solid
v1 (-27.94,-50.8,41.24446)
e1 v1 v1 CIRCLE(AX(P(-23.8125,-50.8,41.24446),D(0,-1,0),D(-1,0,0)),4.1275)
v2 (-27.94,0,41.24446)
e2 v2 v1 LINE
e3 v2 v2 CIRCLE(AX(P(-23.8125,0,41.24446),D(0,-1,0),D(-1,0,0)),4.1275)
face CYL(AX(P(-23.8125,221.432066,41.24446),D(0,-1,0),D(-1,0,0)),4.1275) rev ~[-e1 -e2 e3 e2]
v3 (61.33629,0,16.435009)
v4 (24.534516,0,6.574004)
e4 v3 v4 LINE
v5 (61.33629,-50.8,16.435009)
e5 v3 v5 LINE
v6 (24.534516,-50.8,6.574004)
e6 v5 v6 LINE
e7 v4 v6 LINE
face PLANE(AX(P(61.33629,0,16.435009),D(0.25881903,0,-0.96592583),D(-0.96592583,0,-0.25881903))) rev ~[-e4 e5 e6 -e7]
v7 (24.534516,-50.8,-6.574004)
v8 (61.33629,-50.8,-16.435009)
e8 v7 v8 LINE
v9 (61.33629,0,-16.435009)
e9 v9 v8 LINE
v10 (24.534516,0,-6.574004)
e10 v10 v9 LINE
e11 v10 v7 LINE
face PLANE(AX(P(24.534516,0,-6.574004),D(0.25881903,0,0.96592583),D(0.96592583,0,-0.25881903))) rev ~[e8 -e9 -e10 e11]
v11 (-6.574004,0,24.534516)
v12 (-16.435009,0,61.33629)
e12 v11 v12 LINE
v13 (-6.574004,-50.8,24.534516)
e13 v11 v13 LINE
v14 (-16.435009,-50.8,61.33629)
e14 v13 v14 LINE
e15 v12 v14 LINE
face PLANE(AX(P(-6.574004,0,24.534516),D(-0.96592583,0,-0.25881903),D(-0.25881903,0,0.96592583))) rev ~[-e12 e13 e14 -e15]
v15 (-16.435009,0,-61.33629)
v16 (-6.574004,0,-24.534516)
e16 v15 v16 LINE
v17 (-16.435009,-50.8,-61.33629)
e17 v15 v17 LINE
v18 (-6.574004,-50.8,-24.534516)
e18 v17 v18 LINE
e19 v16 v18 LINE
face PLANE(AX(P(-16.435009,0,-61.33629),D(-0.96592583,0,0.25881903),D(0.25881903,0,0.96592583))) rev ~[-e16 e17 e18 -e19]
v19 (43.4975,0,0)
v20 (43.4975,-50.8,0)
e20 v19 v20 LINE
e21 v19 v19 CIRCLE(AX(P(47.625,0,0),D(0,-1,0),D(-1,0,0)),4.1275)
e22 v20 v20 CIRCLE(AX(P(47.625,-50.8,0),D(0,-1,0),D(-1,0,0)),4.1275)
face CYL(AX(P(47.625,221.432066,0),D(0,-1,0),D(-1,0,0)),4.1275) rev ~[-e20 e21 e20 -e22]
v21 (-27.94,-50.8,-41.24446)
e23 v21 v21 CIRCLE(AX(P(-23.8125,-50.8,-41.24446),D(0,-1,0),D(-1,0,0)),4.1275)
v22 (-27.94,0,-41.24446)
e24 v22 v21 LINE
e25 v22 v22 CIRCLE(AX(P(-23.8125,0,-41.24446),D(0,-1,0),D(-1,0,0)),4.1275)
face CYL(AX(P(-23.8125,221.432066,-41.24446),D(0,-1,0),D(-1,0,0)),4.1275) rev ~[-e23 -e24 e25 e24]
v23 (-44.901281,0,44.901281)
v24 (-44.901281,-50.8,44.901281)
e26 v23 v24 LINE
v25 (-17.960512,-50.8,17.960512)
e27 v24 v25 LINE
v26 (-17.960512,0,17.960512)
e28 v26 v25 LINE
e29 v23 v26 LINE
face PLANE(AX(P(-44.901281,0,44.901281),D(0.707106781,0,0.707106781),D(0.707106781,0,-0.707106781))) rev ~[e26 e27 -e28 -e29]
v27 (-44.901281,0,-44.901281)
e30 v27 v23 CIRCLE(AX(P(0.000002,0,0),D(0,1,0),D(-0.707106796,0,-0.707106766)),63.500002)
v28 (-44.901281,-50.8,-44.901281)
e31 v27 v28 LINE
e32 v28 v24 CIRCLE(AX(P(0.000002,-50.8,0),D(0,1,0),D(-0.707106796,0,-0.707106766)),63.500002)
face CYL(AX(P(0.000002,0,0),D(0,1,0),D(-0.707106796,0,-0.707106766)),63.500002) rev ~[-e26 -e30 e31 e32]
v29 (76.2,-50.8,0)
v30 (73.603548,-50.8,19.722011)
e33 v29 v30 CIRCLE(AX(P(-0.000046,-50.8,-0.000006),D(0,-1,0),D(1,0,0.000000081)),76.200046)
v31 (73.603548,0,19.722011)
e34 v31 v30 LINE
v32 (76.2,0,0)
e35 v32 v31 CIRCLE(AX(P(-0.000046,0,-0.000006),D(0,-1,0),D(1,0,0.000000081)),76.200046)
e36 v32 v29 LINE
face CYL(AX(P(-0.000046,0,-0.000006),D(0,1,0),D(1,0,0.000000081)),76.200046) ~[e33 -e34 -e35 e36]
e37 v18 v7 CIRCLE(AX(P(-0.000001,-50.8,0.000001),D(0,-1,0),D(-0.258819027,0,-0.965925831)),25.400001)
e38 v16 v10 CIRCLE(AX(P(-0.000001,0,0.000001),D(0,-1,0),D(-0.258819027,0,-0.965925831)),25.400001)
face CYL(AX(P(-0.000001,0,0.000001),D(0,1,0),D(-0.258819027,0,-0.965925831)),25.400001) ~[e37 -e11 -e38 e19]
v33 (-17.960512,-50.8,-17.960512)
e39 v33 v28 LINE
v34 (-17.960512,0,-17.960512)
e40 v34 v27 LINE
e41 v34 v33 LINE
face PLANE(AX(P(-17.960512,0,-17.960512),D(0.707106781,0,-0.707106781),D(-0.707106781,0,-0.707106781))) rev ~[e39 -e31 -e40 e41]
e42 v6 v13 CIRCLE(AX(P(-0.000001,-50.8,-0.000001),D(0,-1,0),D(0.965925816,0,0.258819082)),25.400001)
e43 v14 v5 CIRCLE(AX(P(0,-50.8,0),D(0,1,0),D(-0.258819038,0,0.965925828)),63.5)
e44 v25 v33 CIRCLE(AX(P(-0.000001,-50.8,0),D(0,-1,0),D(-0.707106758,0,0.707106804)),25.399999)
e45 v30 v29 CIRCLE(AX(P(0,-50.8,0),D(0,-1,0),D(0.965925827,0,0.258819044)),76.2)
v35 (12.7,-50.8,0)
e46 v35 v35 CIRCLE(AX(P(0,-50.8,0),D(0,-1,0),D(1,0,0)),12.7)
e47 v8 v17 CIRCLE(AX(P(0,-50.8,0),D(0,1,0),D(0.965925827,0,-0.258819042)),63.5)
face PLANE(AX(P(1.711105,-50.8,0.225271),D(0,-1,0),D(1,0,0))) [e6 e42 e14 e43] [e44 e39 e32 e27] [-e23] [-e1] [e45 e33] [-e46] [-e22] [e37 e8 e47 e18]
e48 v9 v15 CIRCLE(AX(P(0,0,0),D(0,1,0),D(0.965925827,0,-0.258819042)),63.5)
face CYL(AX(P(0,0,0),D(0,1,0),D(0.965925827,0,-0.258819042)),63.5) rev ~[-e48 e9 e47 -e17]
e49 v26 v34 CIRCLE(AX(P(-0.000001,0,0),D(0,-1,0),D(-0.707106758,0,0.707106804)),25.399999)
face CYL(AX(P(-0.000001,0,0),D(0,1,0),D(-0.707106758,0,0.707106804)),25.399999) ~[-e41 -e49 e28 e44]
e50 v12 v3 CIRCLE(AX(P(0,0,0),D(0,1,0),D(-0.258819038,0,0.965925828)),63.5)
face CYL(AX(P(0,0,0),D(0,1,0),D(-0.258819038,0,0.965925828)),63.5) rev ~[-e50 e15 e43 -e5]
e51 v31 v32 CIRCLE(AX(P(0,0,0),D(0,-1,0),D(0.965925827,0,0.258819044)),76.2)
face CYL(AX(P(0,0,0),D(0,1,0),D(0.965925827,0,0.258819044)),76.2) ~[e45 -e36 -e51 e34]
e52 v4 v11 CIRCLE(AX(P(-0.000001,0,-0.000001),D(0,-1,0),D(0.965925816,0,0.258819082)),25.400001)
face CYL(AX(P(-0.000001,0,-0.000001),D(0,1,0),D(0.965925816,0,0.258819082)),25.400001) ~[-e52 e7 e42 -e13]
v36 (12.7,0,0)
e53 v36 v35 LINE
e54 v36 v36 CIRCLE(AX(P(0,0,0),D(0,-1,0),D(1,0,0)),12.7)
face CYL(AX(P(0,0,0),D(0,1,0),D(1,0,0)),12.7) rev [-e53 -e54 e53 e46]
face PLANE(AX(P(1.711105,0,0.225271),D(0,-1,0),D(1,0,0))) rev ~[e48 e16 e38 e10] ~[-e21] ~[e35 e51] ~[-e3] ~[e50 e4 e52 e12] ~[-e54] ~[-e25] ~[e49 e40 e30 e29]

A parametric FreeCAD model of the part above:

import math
import FreeCAD as App
import Part
import Sketcher

V = App.Vector
Q = App.Units.Quantity

doc = App.newDocument("Part")
body = doc.addObject("PartDesign::Body", "Body")

# Sketch on XZ plane
sketch1 = body.newObject("Sketcher::SketchObject", "Sketch")
sketch1.AttachmentSupport = (doc.getObject("XZ_Plane"), [""])
sketch1.MapMode = "FlatFace"
sketch1.addGeometry([
    Part.ArcOfCircle(Part.Circle(V(0, 0, 0), V(0, 0, 1), 76.2), math.radians(15), math.radians(360)),  # 0
    Part.ArcOfCircle(Part.Circle(V(-0.000046, -0.000006, 0), V(0, 0, 1), 76.200046), math.radians(0.000005), math.radians(14.999995)),  # 1
    Part.ArcOfCircle(Part.Circle(V(-0.000001, 0.000001, 0), V(0, 0, 1), 25.400001), math.radians(-104.999999), math.radians(-15.000002)),  # 2
    Part.LineSegment(V(24.534516, -6.574004, 0), V(61.33629, -16.435009, 0)),  # 3
    Part.ArcOfCircle(Part.Circle(V(0, 0, 0), V(0, 0, 1), 63.5), math.radians(-105), math.radians(-15)),  # 4
    Part.LineSegment(V(-16.435009, -61.33629, 0), V(-6.574004, -24.534516, 0)),  # 5
    Part.LineSegment(V(-17.960512, -17.960512, 0), V(-44.901281, -44.901281, 0)),  # 6
    Part.ArcOfCircle(Part.Circle(V(0.000002, 0, 0), V(0, 0, 1), 63.500002), math.radians(135.000001), math.radians(224.999999)),  # 7
    Part.LineSegment(V(-44.901281, 44.901281, 0), V(-17.960512, 17.960512, 0)),  # 8
    Part.ArcOfCircle(Part.Circle(V(-0.000001, 0, 0), V(0, 0, 1), 25.399999), math.radians(134.999998), math.radians(225.000002)),  # 9
    Part.Circle(V(0, 0, 0), V(0, 0, 1), 12.7),  # 10
    Part.LineSegment(V(-6.574004, 24.534516, 0), V(-16.435009, 61.33629, 0)),  # 11
    Part.ArcOfCircle(Part.Circle(V(0, 0, 0), V(0, 0, 1), 63.5), math.radians(15), math.radians(105)),  # 12
    Part.LineSegment(V(61.33629, 16.435009, 0), V(24.534516, 6.574004, 0)),  # 13
    Part.ArcOfCircle(Part.Circle(V(-0.000001, -0.000001, 0), V(0, 0, 1), 25.400001), math.radians(15.000002), math.radians(104.999999)),  # 14
], False)
sketch1.addConstraint([
    Sketcher.Constraint("Coincident", 0, 1, 1, 2),
    Sketcher.Constraint("Coincident", 1, 1, 0, 2),
    Sketcher.Constraint("Coincident", 2, 2, 3, 1),
    Sketcher.Constraint("Coincident", 3, 2, 4, 2),
    Sketcher.Constraint("Coincident", 4, 1, 5, 1),
    Sketcher.Constraint("Coincident", 5, 2, 2, 1),
    Sketcher.Constraint("Coincident", 6, 2, 7, 2),
    Sketcher.Constraint("Coincident", 7, 1, 8, 1),
    Sketcher.Constraint("Coincident", 8, 2, 9, 1),
    Sketcher.Constraint("Coincident", 9, 2, 6, 1),
    Sketcher.Constraint("Coincident", 11, 2, 12, 2),
    Sketcher.Constraint("Coincident", 12, 1, 13, 1),
    Sketcher.Constraint("Coincident", 13, 2, 14, 1),
    Sketcher.Constraint("Coincident", 14, 2, 11, 1),
    Sketcher.Constraint("Coincident", 0, 3, -1, 1),
    Sketcher.Constraint("Coincident", 2, 3, -1, 1),
    Sketcher.Constraint("Coincident", 4, 3, -1, 1),
    Sketcher.Constraint("Coincident", 7, 3, -1, 1),
    Sketcher.Constraint("Coincident", 9, 3, -1, 1),
    Sketcher.Constraint("Coincident", 10, 3, -1, 1),
    Sketcher.Constraint("Coincident", 12, 3, -1, 1),
    Sketcher.Constraint("Coincident", 14, 3, -1, 1),
    Sketcher.Constraint("PointOnObject", 1, 1, -1),
    Sketcher.Constraint("Diameter", 10, Q("1 in")),
    Sketcher.Constraint("Radius", 0, Q("3 in")),
    Sketcher.Constraint("Radius", 2, Q("1 in")),
    Sketcher.Constraint("Radius", 9, Q("1 in")),
    Sketcher.Constraint("Radius", 14, Q("1 in")),
    Sketcher.Constraint("Radius", 4, Q("2.5 in")),
    Sketcher.Constraint("Radius", 7, Q("2.5000001 in")),
    Sketcher.Constraint("Radius", 12, Q("2.5 in")),
    Sketcher.Constraint("Radius", 1, 76.200046),
    Sketcher.Constraint("DistanceY", 12, 1, 0, 1, 3.287002),
    Sketcher.Constraint("DistanceY", -1, 1, 0, 1, 19.722011),
    Sketcher.Constraint("DistanceX", -1, 1, 3, 2, 61.33629),
    Sketcher.Constraint("DistanceX", 4, 1, -1, 1, 16.435009),
    Sketcher.Constraint("DistanceX", 6, 2, -1, 1, 44.901281),
    Sketcher.Constraint("DistanceX", 7, 1, -1, 1, 44.901281),
    Sketcher.Constraint("DistanceX", 11, 2, -1, 1, 16.435009),
    Sketcher.Constraint("DistanceY", 5, 2, 1, 3, 24.53451),
    Sketcher.Constraint("DistanceY", 1, 3, 8, 2, 17.960518),
    Sketcher.Constraint("DistanceX", 9, 2, 5, 2, 11.386508),
    Sketcher.Constraint("DistanceY", 2, 2, 13, 2, 13.148008),
    Sketcher.Constraint("DistanceX", 8, 2, 14, 2, 11.386508),
    Sketcher.Constraint("DistanceX", -1, 1, 2, 2, 24.534516),
])
pad1 = body.newObject("PartDesign::Pad", "Pad")
pad1.Profile = sketch1
pad1.Length = Q("2 in")

# Sketch on XZ plane
sketch2 = body.newObject("Sketcher::SketchObject", "Sketch001")
sketch2.AttachmentSupport = (doc.getObject("XZ_Plane"), [""])
sketch2.MapMode = "FlatFace"
sketch2.addGeometry([
    Part.Circle(V(47.6, 0, 0), V(0, 0, 1), 4.1),
    Part.Circle(V(-23.8, 41.2, 0), V(0, 0, 1), 4.1),
    Part.Circle(V(-23.8, -41.2, 0), V(0, 0, 1), 4.1),
], False)
sketch2.addConstraint([
    Sketcher.Constraint("Equal", 0, 1),
    Sketcher.Constraint("Equal", 1, 2),
    Sketcher.Constraint("Symmetric", 1, 3, 2, 3, -1),
    Sketcher.Constraint("PointOnObject", 0, 3, -1),
    Sketcher.Constraint("Diameter", 0, Q("0.325 in")),
    Sketcher.Constraint("DistanceX", -1, 1, 0, 3, Q("1.875 in")),
    Sketcher.Constraint("DistanceX", 1, 3, -1, 1, Q("0.9375 in")),
    Sketcher.Constraint("DistanceY", -1, 1, 1, 3, 41.24446),
])
doc.recompute()
hole = body.newObject("PartDesign::Hole", "Hole")
hole.Profile = sketch2
hole.ThreadType = "None"
hole.Diameter = Q("0.325 in")
hole.DepthType = "ThroughAll"
hole.Reversed = True

doc.recompute()
